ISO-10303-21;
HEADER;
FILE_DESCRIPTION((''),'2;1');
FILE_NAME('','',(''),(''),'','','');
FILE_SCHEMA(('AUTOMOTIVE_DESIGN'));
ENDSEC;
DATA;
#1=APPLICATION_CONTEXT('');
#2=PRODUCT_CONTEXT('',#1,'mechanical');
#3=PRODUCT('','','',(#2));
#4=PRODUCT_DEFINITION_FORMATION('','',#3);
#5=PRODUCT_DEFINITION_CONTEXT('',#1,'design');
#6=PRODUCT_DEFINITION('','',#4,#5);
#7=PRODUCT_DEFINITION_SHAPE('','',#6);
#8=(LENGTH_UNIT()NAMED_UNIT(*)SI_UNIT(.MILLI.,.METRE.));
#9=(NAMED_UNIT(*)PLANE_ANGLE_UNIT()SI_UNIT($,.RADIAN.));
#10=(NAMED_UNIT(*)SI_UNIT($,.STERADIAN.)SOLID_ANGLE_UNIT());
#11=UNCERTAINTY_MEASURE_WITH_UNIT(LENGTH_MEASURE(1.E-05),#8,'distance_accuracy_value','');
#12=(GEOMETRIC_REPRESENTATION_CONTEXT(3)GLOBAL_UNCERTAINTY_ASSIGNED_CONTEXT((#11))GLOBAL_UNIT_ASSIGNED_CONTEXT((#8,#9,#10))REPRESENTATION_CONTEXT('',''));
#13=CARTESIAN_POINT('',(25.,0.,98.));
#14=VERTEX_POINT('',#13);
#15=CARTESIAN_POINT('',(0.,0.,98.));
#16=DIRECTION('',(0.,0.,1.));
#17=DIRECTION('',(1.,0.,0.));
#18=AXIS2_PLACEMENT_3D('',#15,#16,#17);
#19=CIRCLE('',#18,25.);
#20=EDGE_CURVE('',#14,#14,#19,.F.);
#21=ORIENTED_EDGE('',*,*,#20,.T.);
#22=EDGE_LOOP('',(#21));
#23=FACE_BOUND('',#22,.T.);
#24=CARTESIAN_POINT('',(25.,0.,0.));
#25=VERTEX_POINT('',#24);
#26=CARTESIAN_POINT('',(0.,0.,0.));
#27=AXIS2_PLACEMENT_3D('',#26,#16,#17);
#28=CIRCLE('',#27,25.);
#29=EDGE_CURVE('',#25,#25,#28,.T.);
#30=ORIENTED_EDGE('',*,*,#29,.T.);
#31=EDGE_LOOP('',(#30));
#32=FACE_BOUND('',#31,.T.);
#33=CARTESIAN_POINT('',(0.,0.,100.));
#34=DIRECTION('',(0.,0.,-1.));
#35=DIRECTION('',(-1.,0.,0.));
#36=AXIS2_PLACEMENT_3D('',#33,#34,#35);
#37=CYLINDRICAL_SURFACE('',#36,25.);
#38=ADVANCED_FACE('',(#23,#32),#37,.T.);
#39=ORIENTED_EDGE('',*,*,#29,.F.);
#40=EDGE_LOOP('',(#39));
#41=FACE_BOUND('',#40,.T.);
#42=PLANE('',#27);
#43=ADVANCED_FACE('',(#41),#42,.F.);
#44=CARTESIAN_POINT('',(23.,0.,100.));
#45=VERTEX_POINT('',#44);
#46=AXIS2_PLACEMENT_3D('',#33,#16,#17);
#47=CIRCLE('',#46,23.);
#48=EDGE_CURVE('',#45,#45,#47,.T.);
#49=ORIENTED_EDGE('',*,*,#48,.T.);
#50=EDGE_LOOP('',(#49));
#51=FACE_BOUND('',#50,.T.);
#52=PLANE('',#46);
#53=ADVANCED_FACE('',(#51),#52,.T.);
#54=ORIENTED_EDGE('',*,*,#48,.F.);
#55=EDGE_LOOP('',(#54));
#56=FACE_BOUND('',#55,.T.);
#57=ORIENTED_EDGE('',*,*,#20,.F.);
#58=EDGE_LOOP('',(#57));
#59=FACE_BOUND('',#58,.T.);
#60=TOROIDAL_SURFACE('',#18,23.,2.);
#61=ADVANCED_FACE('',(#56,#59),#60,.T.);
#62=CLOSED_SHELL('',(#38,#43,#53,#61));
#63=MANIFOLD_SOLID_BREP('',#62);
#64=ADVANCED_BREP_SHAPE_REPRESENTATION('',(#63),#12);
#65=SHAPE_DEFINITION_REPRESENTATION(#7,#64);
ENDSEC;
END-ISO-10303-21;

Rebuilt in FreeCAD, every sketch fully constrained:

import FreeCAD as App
import Part
import Sketcher
Q = App.Units.Quantity


def edges_at(feature, points):
    """Names of the edges that pass closest to the given points."""
    edges = feature.Shape.Edges
    near = lambda p: min(range(len(edges)), key=lambda i: edges[i].distToShape(Part.Vertex(*p))[0])
    return sorted({f"Edge{near(p) + 1}" for p in points})

doc = App.newDocument("Part")
params = doc.addObject("Spreadsheet::Sheet", "Params")
for row, (alias, value) in enumerate([
    ("sketch1_diameter", "50 mm"),
    ("pad1_length", "100 mm"),
    ("fillet_radius", "2 mm"),
], start=1):
    params.set(f"A{row}", alias)
    params.set(f"B{row}", "=" + value)
    params.setAlias(f"B{row}", alias)

body = doc.addObject("PartDesign::Body", "Body")

sketch1 = doc.addObject("Sketcher::SketchObject", "Sketch")
body.addObject(sketch1)
sketch1.AttachmentSupport = (doc.XY_Plane, [""])
sketch1.MapMode = "FlatFace"
sketch1.addGeometry(Part.Circle(App.Vector(0, 0, 0), App.Vector(0, 0, 1), 25), False)
sketch1.addConstraint(Sketcher.Constraint("Coincident", 0, 3, -1, 1))
sketch1.addConstraint(Sketcher.Constraint("Diameter", 0, Q("50 mm")))
sketch1.setExpression("Constraints[1]", "Params.sketch1_diameter")
pad1 = doc.addObject("PartDesign::Pad", "Pad")
body.addObject(pad1)
pad1.Profile = sketch1
pad1.setExpression("Length", "Params.pad1_length")
doc.recompute()

fillet = doc.addObject("PartDesign::Fillet", "Fillet")
body.addObject(fillet)
fillet.Base = (pad1, edges_at(pad1, [(-25, 0, 100)]))
fillet.setExpression("Radius", "Params.fillet_radius")

doc.recompute()
